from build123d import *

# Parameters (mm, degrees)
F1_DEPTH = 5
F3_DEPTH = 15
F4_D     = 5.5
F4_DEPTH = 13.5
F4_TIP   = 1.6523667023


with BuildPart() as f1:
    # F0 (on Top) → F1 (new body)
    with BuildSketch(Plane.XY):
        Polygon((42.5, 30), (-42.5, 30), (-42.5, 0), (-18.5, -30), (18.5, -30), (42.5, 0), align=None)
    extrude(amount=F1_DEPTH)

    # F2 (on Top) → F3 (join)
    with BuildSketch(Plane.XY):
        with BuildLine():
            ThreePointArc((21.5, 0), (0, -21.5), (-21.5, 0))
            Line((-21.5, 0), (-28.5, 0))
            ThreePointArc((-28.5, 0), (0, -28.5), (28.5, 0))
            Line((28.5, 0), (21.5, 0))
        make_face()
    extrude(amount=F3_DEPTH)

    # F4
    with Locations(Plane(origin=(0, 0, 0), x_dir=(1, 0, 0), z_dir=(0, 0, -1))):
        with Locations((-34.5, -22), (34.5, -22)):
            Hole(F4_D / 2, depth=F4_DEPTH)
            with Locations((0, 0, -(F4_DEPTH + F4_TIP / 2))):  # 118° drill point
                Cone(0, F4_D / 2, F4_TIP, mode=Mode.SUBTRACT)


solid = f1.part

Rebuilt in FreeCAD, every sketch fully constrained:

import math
import FreeCAD as App
import Part
import Sketcher

V = App.Vector
Q = App.Units.Quantity

doc = App.newDocument("Part")
params = doc.addObject("Spreadsheet::Sheet", "Params")
for row, (alias, value) in enumerate([
    ("sketch1_width", "85 mm"),
    ("sketch1_width2", "37 mm"),
    ("sketch1_height", "30 mm"),
    ("pad1_length", "5 mm"),
    ("sketch2_radius", "21.5 mm"),
    ("sketch2_radius2", "28.5 mm"),
    ("pad2_length", "15 mm"),
    ("sketch3_diameter", "5.5 mm"),
    ("hole_diameter", "5.5 mm"),
    ("hole_depth", "13.5 mm"),
], start=1):
    params.set(f"A{row}", alias)
    params.set(f"B{row}", "=" + value)
    params.setAlias(f"B{row}", alias)

body = doc.addObject("PartDesign::Body", "Body")

# Sketch on XY plane
sketch1 = body.newObject("Sketcher::SketchObject", "Sketch")
sketch1.AttachmentSupport = (doc.getObject("XY_Plane"), [""])
sketch1.MapMode = "FlatFace"
sketch1.addGeometry(Part.LineSegment(V(42.5, 30, 0), V(-42.5, 30, 0)), False)
sketch1.addGeometry(Part.LineSegment(V(-42.5, 30, 0), V(-42.5, 0, 0)), False)
sketch1.addGeometry(Part.LineSegment(V(-42.5, 0, 0), V(-18.5, -30, 0)), False)
sketch1.addGeometry(Part.LineSegment(V(-18.5, -30, 0), V(18.5, -30, 0)), False)
sketch1.addGeometry(Part.LineSegment(V(18.5, -30, 0), V(42.5, 0, 0)), False)
sketch1.addGeometry(Part.LineSegment(V(42.5, 0, 0), V(42.5, 30, 0)), False)
sketch1.addConstraint(Sketcher.Constraint("Coincident", 0, 2, 1, 1))
sketch1.addConstraint(Sketcher.Constraint("Coincident", 1, 2, 2, 1))
sketch1.addConstraint(Sketcher.Constraint("Coincident", 2, 2, 3, 1))
sketch1.addConstraint(Sketcher.Constraint("Coincident", 3, 2, 4, 1))
sketch1.addConstraint(Sketcher.Constraint("Coincident", 4, 2, 5, 1))
sketch1.addConstraint(Sketcher.Constraint("Coincident", 5, 2, 0, 1))
sketch1.addConstraint(Sketcher.Constraint("Horizontal", 0))
sketch1.addConstraint(Sketcher.Constraint("Vertical", 1))
sketch1.addConstraint(Sketcher.Constraint("Horizontal", 3))
sketch1.addConstraint(Sketcher.Constraint("Vertical", 5))
sketch1.addConstraint(Sketcher.Constraint("Symmetric", 1, 2, 4, 2, -1, 1))
sketch1.addConstraint(Sketcher.Constraint("PointOnObject", 1, 2, -1))
sketch1.addConstraint(Sketcher.Constraint("Equal", 2, 4))
sketch1.addConstraint(Sketcher.Constraint("DistanceX", 0, 2, 0, 1, Q("85 mm")))
sketch1.addConstraint(Sketcher.Constraint("DistanceX", 3, 1, 3, 2, Q("37 mm")))
sketch1.addConstraint(Sketcher.Constraint("DistanceY", 1, 2, 1, 1, Q("30 mm")))
sketch1.addConstraint(Sketcher.Constraint("DistanceY", 2, 2, -1, 1, Q("30 mm")))
sketch1.setExpression("Constraints[13]", "Params.sketch1_width")
sketch1.setExpression("Constraints[14]", "Params.sketch1_width2")
sketch1.setExpression("Constraints[15]", "Params.sketch1_height")
pad1 = body.newObject("PartDesign::Pad", "Pad")
pad1.Profile = sketch1
pad1.setExpression("Length", "Params.pad1_length")

# Sketch on XY plane
sketch2 = body.newObject("Sketcher::SketchObject", "Sketch001")
sketch2.AttachmentSupport = (doc.getObject("XY_Plane"), [""])
sketch2.MapMode = "FlatFace"
sketch2.addGeometry(Part.ArcOfCircle(Part.Circle(V(0, 0, 0), V(0, 0, 1), 21.5), math.radians(180), math.radians(360)), False)
sketch2.addGeometry(Part.LineSegment(V(-21.5, 0, 0), V(-28.5, 0, 0)), False)
sketch2.addGeometry(Part.ArcOfCircle(Part.Circle(V(0, 0, 0), V(0, 0, 1), 28.5), math.radians(180), math.radians(360)), False)
sketch2.addGeometry(Part.LineSegment(V(28.5, 0, 0), V(21.5, 0, 0)), False)
sketch2.addConstraint(Sketcher.Constraint("Coincident", 0, 1, 1, 1))
sketch2.addConstraint(Sketcher.Constraint("Coincident", 1, 2, 2, 1))
sketch2.addConstraint(Sketcher.Constraint("Coincident", 2, 2, 3, 1))
sketch2.addConstraint(Sketcher.Constraint("Coincident", 3, 2, 0, 2))
sketch2.addConstraint(Sketcher.Constraint("Horizontal", 1))
sketch2.addConstraint(Sketcher.Constraint("Horizontal", 3))
sketch2.addConstraint(Sketcher.Constraint("Coincident", 0, 3, -1, 1))
sketch2.addConstraint(Sketcher.Constraint("Coincident", 2, 3, -1, 1))
sketch2.addConstraint(Sketcher.Constraint("PointOnObject", 0, 1, -1))
sketch2.addConstraint(Sketcher.Constraint("PointOnObject", 2, 2, -1))
sketch2.addConstraint(Sketcher.Constraint("Radius", 0, Q("21.5 mm")))
sketch2.addConstraint(Sketcher.Constraint("Radius", 2, Q("28.5 mm")))
sketch2.setExpression("Constraints[10]", "Params.sketch2_radius")
sketch2.setExpression("Constraints[11]", "Params.sketch2_radius2")
pad2 = body.newObject("PartDesign::Pad", "Pad001")
pad2.Profile = sketch2
pad2.setExpression("Length", "Params.pad2_length")

# Sketch on XY plane
sketch3 = body.newObject("Sketcher::SketchObject", "Sketch002")
sketch3.AttachmentSupport = (doc.getObject("XY_Plane"), [""])
sketch3.MapMode = "FlatFace"
sketch3.addGeometry(Part.Circle(V(-34.5, 22, 0), V(0, 0, 1), 2.75), False)
sketch3.addGeometry(Part.Circle(V(34.5, 22, 0), V(0, 0, 1), 2.75), False)
sketch3.addConstraint(Sketcher.Constraint("Equal", 0, 1))
sketch3.addConstraint(Sketcher.Constraint("Symmetric", 0, 3, 1, 3, -2))
sketch3.addConstraint(Sketcher.Constraint("Diameter", 0, Q("5.5 mm")))
sketch3.addConstraint(Sketcher.Constraint("DistanceY", -1, 1, 0, 3, Q("22 mm")))
sketch3.addConstraint(Sketcher.Constraint("DistanceX", 0, 3, 1, 3, Q("69 mm")))
sketch3.setExpression("Constraints[2]", "Params.sketch3_diameter")
doc.recompute()
hole = body.newObject("PartDesign::Hole", "Hole")
hole.Profile = sketch3
hole.ThreadType = "None"
hole.setExpression("Diameter", "Params.hole_diameter")
hole.DepthType = "Dimension"
hole.setExpression("Depth", "Params.hole_depth")
hole.DrillPoint = "Angled"
hole.DrillPointAngle = 118
hole.Reversed = True

doc.recompute()
